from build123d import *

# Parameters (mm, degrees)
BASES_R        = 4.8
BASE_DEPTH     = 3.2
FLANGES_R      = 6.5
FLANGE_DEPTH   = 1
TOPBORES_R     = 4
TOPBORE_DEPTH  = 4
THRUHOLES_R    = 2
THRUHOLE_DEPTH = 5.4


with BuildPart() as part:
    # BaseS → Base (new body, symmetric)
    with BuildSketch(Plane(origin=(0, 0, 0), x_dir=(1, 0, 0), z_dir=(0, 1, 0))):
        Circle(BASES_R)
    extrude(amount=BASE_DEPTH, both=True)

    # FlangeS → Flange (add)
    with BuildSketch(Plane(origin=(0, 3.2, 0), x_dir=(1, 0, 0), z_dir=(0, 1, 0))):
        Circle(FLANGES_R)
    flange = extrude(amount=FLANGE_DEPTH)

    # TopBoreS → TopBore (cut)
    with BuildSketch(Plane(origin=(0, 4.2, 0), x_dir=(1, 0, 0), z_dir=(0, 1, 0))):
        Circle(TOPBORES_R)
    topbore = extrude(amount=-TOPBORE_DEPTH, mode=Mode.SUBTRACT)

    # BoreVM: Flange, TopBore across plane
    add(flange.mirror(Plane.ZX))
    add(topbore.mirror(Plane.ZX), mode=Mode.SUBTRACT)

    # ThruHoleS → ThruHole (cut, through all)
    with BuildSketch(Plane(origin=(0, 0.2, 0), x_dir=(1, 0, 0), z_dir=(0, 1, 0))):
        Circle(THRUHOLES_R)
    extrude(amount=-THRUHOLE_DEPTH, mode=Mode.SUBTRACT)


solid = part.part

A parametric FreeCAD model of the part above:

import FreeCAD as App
import Part
import Sketcher
Q = App.Units.Quantity

doc = App.newDocument("Part")
params = doc.addObject("Spreadsheet::Sheet", "Params")
for row, (alias, value) in enumerate([
    ("sketch1_diameter", "9.6 mm"),
    ("pad1_length", "6.4 mm"),
    ("sketch2_diameter", "13 mm"),
    ("pad2_length", "1 mm"),
    ("sketch3_diameter", "8 mm"),
    ("pocket1_length", "4 mm"),
    ("sketch4_diameter", "4 mm"),
], start=1):
    params.set(f"A{row}", alias)
    params.set(f"B{row}", "=" + value)
    params.setAlias(f"B{row}", alias)

body = doc.addObject("PartDesign::Body", "Body")

# Sketch on XZ plane
sketch1 = body.newObject("Sketcher::SketchObject", "Sketch")
sketch1.AttachmentSupport = (doc.getObject("XZ_Plane"), [""])
sketch1.MapMode = "FlatFace"
sketch1.addGeometry(Part.Circle(App.Vector(0, 0, 0), App.Vector(0, 0, 1), 4.8), False)
sketch1.addConstraint(Sketcher.Constraint("Coincident", 0, 3, -1, 1))
sketch1.addConstraint(Sketcher.Constraint("Diameter", 0, Q("9.6 mm")))
sketch1.setExpression("Constraints[1]", "Params.sketch1_diameter")
pad1 = body.newObject("PartDesign::Pad", "Pad")
pad1.Profile = sketch1
pad1.setExpression("Length", "Params.pad1_length")
pad1.Midplane = True

# Sketch on XZ plane
sketch2 = body.newObject("Sketcher::SketchObject", "Sketch001")
sketch2.AttachmentSupport = (doc.getObject("XZ_Plane"), [""])
sketch2.MapMode = "FlatFace"
sketch2.AttachmentOffset = App.Placement(App.Vector(0, 0, -3.2), App.Rotation())
sketch2.addGeometry(Part.Circle(App.Vector(0, 0, 0), App.Vector(0, 0, 1), 6.5), False)
sketch2.addConstraint(Sketcher.Constraint("Coincident", 0, 3, -1, 1))
sketch2.addConstraint(Sketcher.Constraint("Diameter", 0, Q("13 mm")))
sketch2.setExpression("Constraints[1]", "Params.sketch2_diameter")
pad2 = body.newObject("PartDesign::Pad", "Pad001")
pad2.Profile = sketch2
pad2.setExpression("Length", "Params.pad2_length")
pad2.Reversed = True

# Sketch on XZ plane
sketch3 = body.newObject("Sketcher::SketchObject", "Sketch002")
sketch3.AttachmentSupport = (doc.getObject("XZ_Plane"), [""])
sketch3.MapMode = "FlatFace"
sketch3.AttachmentOffset = App.Placement(App.Vector(0, 0, -4.2), App.Rotation())
sketch3.addGeometry(Part.Circle(App.Vector(0, 0, 0), App.Vector(0, 0, 1), 4), False)
sketch3.addConstraint(Sketcher.Constraint("Coincident", 0, 3, -1, 1))
sketch3.addConstraint(Sketcher.Constraint("Diameter", 0, Q("8 mm")))
sketch3.setExpression("Constraints[1]", "Params.sketch3_diameter")
pocket1 = body.newObject("PartDesign::Pocket", "Pocket")
pocket1.Profile = sketch3
pocket1.setExpression("Length", "Params.pocket1_length")
pocket1.Reversed = True
doc.recompute()

mirrored = body.newObject("PartDesign::Mirrored", "Mirrored")
mirrored.Originals = [pad2, pocket1]
mirrored.MirrorPlane = (doc.getObject("XZ_Plane"), [""])
body.Tip = mirrored

# Sketch on XZ plane
sketch4 = body.newObject("Sketcher::SketchObject", "Sketch003")
sketch4.AttachmentSupport = (doc.getObject("XZ_Plane"), [""])
sketch4.MapMode = "FlatFace"
sketch4.AttachmentOffset = App.Placement(App.Vector(0, 0, -0.2), App.Rotation())
sketch4.addGeometry(Part.Circle(App.Vector(0, 0, 0), App.Vector(0, 0, 1), 2), False)
sketch4.addConstraint(Sketcher.Constraint("Coincident", 0, 3, -1, 1))
sketch4.addConstraint(Sketcher.Constraint("Diameter", 0, Q("4 mm")))
sketch4.setExpression("Constraints[1]", "Params.sketch4_diameter")
pocket2 = body.newObject("PartDesign::Pocket", "Pocket001")
pocket2.Profile = sketch4
pocket2.Type = "ThroughAll"
pocket2.Reversed = True

doc.recompute()
